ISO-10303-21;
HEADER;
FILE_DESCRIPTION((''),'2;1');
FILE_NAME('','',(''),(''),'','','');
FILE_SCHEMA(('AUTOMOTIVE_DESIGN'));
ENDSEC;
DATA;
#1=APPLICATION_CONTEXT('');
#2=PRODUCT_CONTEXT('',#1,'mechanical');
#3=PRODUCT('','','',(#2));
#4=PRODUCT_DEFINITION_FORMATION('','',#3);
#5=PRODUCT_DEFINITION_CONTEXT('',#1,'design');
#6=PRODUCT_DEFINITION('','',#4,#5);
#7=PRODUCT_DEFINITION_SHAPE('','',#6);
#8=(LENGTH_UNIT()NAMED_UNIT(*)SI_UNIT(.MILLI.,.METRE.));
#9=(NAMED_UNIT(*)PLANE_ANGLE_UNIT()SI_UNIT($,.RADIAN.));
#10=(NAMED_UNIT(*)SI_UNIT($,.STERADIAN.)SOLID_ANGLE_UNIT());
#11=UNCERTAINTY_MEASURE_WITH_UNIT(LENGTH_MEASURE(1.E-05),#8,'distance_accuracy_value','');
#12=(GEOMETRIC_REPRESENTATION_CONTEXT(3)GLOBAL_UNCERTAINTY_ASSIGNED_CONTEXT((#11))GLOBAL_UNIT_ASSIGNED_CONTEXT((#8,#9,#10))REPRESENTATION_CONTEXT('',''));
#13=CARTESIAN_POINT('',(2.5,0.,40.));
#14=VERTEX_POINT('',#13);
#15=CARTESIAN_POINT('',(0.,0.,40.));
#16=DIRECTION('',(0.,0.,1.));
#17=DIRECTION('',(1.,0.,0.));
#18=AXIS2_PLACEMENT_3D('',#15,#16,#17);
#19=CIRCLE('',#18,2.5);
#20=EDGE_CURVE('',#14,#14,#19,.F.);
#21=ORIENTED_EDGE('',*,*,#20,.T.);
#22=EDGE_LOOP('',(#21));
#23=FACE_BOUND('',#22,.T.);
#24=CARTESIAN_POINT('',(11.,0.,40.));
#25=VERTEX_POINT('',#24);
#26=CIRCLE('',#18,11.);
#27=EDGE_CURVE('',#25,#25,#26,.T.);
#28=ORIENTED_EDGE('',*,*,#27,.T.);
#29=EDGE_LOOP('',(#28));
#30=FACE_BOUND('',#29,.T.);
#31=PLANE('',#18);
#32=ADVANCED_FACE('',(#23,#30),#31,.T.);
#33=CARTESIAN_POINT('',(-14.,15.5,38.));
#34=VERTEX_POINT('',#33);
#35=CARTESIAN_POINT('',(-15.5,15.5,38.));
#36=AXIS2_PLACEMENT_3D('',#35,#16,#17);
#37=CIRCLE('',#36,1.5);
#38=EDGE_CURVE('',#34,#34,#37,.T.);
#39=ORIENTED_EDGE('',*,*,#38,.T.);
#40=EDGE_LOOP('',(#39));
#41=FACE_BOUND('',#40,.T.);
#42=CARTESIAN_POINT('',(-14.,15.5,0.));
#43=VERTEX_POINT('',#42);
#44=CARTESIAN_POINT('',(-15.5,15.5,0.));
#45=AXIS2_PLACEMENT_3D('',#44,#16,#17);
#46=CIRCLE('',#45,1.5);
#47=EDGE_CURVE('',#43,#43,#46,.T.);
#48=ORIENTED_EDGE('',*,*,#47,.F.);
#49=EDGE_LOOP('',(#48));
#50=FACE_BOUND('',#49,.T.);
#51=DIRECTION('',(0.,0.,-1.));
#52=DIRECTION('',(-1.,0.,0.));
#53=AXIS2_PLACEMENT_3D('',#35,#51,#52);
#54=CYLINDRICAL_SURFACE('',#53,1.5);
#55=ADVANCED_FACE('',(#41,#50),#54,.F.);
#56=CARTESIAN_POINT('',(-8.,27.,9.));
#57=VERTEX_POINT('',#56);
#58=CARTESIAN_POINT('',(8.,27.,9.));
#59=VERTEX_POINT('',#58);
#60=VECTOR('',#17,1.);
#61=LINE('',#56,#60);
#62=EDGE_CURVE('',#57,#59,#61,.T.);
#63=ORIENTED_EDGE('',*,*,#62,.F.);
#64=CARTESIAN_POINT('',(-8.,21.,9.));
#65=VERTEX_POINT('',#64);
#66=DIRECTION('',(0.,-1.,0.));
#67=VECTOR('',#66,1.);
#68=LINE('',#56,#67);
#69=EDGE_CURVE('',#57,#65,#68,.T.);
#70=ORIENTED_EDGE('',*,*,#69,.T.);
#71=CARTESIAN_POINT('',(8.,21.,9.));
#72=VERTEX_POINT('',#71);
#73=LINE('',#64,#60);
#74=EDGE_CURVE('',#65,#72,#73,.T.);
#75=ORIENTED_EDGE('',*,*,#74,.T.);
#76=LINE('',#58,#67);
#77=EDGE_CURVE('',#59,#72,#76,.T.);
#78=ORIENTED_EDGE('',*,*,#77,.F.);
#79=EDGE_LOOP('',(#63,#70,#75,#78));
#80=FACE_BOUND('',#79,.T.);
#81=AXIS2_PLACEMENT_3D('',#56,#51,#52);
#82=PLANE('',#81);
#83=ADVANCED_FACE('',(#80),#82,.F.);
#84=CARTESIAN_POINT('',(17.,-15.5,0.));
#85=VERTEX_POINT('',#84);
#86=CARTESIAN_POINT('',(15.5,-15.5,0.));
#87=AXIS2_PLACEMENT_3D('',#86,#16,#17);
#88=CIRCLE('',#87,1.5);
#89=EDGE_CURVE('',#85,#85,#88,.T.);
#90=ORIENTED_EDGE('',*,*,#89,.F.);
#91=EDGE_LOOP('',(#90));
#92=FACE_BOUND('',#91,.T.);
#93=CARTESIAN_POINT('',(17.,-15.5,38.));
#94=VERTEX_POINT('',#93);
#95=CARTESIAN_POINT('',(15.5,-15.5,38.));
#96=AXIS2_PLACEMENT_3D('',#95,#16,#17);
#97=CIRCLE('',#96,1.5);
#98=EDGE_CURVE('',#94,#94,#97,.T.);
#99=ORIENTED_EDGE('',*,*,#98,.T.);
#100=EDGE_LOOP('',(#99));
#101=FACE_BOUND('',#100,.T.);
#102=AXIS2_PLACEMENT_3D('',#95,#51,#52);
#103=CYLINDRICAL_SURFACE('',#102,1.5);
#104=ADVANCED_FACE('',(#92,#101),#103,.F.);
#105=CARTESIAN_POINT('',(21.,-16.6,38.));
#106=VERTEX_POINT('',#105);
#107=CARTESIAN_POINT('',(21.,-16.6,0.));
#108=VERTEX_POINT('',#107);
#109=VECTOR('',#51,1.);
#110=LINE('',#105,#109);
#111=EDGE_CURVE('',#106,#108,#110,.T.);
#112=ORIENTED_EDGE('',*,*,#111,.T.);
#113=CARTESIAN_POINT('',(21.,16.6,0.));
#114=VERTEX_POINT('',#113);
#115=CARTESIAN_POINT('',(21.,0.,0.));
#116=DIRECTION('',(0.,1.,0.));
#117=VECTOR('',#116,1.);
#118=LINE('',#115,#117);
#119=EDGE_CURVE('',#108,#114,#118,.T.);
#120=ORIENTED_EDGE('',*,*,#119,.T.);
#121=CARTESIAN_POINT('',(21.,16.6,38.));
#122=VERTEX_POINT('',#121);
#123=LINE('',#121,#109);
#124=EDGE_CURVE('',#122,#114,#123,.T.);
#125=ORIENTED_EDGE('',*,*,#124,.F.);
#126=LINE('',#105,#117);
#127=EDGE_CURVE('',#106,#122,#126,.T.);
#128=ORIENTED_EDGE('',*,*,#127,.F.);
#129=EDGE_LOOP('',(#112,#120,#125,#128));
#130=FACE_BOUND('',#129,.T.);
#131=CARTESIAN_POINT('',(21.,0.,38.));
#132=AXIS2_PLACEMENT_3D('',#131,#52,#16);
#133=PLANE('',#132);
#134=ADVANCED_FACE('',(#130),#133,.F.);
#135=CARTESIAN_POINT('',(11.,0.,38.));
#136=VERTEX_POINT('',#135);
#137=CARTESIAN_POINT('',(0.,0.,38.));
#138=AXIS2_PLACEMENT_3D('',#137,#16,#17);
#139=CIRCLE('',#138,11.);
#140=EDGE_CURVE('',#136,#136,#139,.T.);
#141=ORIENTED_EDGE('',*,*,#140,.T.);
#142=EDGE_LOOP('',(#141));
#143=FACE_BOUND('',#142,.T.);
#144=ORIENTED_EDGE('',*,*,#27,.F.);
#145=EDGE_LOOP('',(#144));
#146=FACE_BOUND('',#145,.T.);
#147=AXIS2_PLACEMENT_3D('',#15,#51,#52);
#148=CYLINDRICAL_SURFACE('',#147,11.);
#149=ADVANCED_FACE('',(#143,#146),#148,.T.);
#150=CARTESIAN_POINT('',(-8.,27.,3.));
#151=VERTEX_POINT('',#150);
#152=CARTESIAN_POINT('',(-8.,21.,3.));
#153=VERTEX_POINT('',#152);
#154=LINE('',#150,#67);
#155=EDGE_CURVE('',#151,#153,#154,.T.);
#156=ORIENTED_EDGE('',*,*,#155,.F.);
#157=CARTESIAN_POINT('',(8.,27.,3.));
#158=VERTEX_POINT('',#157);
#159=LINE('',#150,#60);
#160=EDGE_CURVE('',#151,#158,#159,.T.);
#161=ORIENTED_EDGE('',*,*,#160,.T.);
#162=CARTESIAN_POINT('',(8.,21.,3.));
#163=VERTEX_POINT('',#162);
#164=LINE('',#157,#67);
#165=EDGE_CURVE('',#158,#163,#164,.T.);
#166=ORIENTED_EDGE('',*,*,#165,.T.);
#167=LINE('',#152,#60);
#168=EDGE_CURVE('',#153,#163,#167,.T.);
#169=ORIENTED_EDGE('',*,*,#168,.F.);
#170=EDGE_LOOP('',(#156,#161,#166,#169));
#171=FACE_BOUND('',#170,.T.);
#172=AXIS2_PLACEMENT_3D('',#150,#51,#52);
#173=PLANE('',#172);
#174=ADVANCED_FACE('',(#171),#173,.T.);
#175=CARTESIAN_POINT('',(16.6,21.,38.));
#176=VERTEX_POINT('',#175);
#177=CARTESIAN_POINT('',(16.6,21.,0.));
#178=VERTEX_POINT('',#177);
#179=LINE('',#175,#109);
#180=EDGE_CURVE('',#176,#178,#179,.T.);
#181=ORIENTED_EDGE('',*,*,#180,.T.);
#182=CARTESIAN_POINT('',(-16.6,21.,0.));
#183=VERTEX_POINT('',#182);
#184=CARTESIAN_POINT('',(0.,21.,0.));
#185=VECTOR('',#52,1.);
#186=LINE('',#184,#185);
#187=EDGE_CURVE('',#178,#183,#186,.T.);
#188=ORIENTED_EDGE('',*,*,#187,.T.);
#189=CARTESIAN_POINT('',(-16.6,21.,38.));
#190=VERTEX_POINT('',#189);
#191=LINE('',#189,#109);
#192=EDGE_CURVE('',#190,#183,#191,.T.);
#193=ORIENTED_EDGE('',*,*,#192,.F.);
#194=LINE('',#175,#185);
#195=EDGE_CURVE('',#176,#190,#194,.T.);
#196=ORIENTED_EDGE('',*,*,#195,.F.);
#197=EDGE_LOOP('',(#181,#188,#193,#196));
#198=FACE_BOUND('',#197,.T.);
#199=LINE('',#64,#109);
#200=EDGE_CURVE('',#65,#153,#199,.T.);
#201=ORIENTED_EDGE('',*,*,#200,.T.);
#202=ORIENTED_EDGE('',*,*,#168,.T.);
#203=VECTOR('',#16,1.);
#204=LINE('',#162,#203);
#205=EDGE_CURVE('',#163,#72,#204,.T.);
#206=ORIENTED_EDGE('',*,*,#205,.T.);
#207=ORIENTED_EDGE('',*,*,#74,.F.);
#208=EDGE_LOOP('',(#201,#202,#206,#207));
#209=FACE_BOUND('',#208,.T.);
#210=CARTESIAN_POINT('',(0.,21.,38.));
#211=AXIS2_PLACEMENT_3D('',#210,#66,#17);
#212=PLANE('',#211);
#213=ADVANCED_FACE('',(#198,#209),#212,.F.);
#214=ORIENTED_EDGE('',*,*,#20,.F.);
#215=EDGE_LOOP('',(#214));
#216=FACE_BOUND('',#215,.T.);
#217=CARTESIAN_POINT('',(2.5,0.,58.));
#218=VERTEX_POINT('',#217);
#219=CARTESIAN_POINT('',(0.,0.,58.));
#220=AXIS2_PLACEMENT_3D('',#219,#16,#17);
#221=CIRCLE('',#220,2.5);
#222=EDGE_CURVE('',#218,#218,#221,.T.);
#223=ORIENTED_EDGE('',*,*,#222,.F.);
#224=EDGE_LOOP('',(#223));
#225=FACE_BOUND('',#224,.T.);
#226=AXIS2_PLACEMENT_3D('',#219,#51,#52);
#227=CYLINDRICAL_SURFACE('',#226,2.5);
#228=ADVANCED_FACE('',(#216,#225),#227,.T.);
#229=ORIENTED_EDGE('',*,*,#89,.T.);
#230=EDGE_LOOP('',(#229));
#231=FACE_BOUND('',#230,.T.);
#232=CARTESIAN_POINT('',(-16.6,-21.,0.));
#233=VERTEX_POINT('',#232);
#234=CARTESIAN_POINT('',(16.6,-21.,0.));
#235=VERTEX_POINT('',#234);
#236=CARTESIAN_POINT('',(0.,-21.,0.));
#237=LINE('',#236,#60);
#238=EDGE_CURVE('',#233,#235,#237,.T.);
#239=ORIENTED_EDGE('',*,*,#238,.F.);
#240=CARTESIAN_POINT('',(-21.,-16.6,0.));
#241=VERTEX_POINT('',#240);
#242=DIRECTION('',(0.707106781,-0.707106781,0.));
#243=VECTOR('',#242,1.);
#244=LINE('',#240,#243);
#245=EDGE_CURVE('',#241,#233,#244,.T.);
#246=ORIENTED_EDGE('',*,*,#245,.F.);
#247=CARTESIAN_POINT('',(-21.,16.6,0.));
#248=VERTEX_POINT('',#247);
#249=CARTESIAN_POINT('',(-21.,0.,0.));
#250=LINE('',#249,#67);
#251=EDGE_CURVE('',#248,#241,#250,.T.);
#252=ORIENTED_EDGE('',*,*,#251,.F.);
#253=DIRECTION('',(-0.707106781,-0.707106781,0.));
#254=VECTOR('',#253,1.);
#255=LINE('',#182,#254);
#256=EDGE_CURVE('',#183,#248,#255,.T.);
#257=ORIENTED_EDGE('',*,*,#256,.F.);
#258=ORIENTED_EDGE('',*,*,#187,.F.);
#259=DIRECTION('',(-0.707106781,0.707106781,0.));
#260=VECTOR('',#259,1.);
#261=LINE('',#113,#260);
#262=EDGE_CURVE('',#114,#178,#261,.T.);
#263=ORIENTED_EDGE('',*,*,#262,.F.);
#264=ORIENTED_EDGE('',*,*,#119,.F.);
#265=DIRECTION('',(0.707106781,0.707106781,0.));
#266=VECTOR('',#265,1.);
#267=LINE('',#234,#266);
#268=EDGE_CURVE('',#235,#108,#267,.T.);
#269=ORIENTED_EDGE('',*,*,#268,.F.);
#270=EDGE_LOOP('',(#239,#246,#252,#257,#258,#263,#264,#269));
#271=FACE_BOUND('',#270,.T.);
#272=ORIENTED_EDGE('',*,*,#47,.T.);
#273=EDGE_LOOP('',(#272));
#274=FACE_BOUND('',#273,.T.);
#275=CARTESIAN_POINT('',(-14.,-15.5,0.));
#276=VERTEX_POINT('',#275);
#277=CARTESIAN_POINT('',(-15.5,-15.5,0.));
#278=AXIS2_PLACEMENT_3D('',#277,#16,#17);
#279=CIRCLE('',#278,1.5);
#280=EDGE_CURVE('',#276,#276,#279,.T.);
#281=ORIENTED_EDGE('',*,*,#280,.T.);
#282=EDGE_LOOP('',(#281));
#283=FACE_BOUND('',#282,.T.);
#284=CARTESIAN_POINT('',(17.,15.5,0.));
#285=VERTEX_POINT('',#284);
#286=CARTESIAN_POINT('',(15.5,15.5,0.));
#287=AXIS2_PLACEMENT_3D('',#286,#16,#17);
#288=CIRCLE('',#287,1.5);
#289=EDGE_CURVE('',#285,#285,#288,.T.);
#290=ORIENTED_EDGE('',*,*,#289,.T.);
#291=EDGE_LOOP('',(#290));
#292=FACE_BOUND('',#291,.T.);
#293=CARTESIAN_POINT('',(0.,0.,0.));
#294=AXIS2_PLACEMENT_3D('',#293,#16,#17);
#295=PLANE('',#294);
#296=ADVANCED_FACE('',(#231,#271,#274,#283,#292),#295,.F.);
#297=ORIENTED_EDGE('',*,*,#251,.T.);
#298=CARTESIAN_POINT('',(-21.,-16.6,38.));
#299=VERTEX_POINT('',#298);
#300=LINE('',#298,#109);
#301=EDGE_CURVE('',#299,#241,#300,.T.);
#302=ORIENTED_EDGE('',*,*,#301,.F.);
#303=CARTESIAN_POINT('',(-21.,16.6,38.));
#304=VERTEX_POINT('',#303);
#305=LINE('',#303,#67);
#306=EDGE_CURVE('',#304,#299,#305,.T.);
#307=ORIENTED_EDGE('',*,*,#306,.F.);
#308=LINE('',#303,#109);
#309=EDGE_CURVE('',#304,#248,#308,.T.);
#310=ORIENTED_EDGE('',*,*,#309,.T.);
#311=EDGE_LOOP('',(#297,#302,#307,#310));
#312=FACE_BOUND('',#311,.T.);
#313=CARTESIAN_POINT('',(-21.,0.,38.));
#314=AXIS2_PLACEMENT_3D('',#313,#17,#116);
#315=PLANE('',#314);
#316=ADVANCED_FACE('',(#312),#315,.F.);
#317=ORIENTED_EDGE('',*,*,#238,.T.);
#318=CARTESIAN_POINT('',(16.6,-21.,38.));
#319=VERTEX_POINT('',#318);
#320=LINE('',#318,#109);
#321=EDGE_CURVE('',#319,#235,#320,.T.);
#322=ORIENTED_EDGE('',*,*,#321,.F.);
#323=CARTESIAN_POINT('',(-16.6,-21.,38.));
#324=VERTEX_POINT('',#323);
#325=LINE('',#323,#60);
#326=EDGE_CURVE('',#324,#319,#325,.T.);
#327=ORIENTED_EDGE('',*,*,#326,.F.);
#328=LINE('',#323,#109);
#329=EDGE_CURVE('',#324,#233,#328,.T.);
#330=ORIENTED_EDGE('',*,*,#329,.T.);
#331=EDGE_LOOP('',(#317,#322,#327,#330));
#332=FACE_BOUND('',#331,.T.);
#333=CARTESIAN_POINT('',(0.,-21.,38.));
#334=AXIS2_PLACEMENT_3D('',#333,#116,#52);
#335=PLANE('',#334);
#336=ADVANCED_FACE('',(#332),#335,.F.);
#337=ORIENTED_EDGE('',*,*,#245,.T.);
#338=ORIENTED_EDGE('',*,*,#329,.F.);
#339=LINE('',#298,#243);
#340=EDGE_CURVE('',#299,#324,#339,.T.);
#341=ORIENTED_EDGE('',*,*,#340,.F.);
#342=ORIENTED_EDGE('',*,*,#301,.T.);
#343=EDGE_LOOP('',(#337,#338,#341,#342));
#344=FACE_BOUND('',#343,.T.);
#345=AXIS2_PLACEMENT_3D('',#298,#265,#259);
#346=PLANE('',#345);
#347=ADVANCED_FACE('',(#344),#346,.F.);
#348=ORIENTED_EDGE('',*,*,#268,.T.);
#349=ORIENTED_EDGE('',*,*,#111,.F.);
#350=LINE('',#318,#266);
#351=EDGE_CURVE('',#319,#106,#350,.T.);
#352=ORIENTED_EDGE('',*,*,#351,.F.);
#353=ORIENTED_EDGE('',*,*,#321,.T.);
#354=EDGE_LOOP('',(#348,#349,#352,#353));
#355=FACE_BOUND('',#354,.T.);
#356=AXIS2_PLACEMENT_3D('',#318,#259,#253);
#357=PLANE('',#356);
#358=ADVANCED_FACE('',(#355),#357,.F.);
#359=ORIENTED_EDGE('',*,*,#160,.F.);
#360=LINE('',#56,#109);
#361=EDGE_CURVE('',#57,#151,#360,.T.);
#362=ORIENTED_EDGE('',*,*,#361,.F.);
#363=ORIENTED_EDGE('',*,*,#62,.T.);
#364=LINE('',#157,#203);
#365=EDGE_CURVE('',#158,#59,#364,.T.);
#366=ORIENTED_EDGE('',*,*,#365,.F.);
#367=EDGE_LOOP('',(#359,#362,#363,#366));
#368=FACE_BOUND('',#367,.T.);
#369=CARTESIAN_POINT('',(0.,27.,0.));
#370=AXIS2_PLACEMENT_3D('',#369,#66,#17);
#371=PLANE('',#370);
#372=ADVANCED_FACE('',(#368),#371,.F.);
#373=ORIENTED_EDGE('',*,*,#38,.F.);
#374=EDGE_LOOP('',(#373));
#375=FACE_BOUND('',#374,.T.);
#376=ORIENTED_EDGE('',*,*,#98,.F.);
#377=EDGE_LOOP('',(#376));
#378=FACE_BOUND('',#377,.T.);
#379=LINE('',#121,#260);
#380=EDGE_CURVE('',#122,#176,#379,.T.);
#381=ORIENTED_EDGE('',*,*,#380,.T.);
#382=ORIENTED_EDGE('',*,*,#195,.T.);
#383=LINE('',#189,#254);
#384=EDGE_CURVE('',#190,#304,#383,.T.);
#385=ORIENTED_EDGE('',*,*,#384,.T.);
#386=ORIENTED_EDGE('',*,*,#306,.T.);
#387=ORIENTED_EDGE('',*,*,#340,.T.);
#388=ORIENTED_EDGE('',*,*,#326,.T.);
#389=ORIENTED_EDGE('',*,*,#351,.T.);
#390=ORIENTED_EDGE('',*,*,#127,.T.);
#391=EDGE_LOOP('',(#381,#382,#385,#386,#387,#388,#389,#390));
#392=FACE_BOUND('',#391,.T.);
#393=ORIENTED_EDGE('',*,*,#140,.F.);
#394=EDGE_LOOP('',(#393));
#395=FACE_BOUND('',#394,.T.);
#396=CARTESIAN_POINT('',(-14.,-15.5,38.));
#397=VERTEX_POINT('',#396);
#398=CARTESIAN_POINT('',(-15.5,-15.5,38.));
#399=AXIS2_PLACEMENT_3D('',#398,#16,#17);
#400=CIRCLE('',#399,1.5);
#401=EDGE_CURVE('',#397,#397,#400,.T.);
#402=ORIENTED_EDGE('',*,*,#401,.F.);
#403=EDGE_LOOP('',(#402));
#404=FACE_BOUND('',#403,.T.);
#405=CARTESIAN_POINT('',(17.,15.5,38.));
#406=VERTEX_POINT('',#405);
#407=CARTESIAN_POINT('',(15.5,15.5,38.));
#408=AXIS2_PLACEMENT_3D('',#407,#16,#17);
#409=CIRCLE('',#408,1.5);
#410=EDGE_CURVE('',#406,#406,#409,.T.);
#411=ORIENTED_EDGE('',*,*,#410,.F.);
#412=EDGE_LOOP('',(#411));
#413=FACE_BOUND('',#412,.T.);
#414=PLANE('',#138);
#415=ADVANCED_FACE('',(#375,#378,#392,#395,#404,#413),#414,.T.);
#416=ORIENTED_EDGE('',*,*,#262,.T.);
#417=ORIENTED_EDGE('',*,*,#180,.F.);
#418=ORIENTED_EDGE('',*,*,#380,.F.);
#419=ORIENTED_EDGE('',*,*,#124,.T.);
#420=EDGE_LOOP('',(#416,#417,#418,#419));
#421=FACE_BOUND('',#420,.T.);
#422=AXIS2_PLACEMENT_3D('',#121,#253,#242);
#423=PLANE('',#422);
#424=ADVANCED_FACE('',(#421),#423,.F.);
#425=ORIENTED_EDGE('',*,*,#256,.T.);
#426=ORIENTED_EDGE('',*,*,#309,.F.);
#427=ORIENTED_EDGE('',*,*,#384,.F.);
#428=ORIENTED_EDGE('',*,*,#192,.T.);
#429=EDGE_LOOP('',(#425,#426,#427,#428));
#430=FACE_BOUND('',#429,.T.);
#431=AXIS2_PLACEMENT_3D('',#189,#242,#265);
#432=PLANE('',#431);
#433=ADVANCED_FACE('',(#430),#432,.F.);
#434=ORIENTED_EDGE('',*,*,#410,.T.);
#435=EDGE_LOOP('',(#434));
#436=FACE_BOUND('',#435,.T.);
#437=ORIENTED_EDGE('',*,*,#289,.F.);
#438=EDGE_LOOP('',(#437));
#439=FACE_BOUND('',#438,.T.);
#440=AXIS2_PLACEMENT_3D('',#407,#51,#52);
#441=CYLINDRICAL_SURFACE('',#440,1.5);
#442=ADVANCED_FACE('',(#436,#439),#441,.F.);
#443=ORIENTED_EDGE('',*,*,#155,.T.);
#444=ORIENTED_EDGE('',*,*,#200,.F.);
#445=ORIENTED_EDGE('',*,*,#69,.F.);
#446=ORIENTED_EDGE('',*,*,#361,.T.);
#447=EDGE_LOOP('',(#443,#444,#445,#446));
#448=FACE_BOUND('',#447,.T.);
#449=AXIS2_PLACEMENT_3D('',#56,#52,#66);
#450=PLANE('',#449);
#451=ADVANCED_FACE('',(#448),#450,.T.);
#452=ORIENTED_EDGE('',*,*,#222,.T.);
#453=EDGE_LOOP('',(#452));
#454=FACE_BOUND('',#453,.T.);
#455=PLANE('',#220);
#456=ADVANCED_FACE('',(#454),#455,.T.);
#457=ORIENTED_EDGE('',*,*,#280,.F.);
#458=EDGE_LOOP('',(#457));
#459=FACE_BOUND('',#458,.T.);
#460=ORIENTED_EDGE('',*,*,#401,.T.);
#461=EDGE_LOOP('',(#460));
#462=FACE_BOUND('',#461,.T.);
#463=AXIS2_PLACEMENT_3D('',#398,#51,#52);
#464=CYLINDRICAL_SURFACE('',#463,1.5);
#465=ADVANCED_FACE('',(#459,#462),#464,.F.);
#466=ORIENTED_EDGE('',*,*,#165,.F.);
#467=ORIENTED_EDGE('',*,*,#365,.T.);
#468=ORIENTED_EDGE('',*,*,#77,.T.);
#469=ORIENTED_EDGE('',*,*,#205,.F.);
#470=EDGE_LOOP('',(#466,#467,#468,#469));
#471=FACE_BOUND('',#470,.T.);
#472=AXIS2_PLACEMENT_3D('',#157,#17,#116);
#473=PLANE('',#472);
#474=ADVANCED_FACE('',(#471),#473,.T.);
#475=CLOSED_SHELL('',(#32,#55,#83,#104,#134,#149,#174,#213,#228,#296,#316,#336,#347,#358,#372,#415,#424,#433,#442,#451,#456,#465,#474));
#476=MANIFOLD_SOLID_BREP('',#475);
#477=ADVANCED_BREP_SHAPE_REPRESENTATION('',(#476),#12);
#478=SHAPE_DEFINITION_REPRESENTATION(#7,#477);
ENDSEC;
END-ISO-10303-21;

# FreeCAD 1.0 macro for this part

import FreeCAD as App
import Part
import Sketcher
Q = App.Units.Quantity


def add_polygon(sketch, points):
    """Adds a closed chain of lines whose ends are joined by coincident constraints."""
    first, n = sketch.GeometryCount, len(points)
    for a, b in zip(points, points[1:] + points[:1]):
        sketch.addGeometry(Part.LineSegment(App.Vector(*a, 0), App.Vector(*b, 0)), False)
    for i in range(n):
        sketch.addConstraint(Sketcher.Constraint("Coincident", first + i, 2, first + (i + 1) % n, 1))

doc = App.newDocument("Part")
body = doc.addObject("PartDesign::Body", "Body")

# Sketch on XY plane
sketch1 = body.newObject("Sketcher::SketchObject", "Sketch")
sketch1.AttachmentSupport = (doc.getObject("XY_Plane"), [""])
sketch1.MapMode = "FlatFace"
add_polygon(sketch1, [(21, 16.6), (16.6, 21), (-16.6, 21), (-21, 16.6), (-21, -16.6), (-16.6, -21), (16.6, -21), (21, -16.6)])  # lines 0-7
sketch1.addGeometry(Part.Circle(App.Vector(-15.5, -15.5, 0), App.Vector(0, 0, 1), 1.5), False)  # 8
sketch1.addGeometry(Part.Circle(App.Vector(15.5, -15.5, 0), App.Vector(0, 0, 1), 1.5), False)  # 9
sketch1.addGeometry(Part.Circle(App.Vector(-15.5, 15.5, 0), App.Vector(0, 0, 1), 1.5), False)  # 10
sketch1.addGeometry(Part.Circle(App.Vector(15.5, 15.5, 0), App.Vector(0, 0, 1), 1.5), False)  # 11
sketch1.addConstraint(Sketcher.Constraint("Horizontal", 1))
sketch1.addConstraint(Sketcher.Constraint("Vertical", 3))
sketch1.addConstraint(Sketcher.Constraint("Horizontal", 5))
sketch1.addConstraint(Sketcher.Constraint("Vertical", 7))
sketch1.addConstraint(Sketcher.Constraint("Equal", 8, 9))
sketch1.addConstraint(Sketcher.Constraint("Equal", 9, 10))
sketch1.addConstraint(Sketcher.Constraint("Equal", 10, 11))
sketch1.addConstraint(Sketcher.Constraint("Symmetric", 9, 3, 10, 3, -1, 1))
sketch1.addConstraint(Sketcher.Constraint("Symmetric", 8, 3, 11, 3, -1, 1))
sketch1.addConstraint(Sketcher.Constraint("Symmetric", 0, 2, 4, 2, -1, 1))
sketch1.addConstraint(Sketcher.Constraint("Symmetric", 2, 2, 6, 2, -1, 1))
sketch1.addConstraint(Sketcher.Constraint("Symmetric", 8, 3, 9, 3, -2))
sketch1.addConstraint(Sketcher.Constraint("Perpendicular", 0, 2))
sketch1.addConstraint(Sketcher.Constraint("Perpendicular", 2, 4))
sketch1.addConstraint(Sketcher.Constraint("Perpendicular", 4, 6))
sketch1.addConstraint(Sketcher.Constraint("Horizontal", 3, 2, 6, 2))
sketch1.addConstraint(Sketcher.Constraint("Vertical", 1, 2, 4, 2))
sketch1.addConstraint(Sketcher.Constraint("Equal", 5, 3))
sketch1.addConstraint(Sketcher.Constraint("Diameter", 8, Q("3 mm")))
sketch1.addConstraint(Sketcher.Constraint("DistanceX", 1, 2, 1, 1, Q("33.2 mm")))
sketch1.addConstraint(Sketcher.Constraint("DistanceY", -1, 1, 0, 2, Q("21 mm")))
sketch1.addConstraint(Sketcher.Constraint("DistanceX", 8, 3, 9, 3, Q("31 mm")))
sketch1.addConstraint(Sketcher.Constraint("DistanceY", 8, 3, 10, 3, Q("31 mm")))
pad1 = body.newObject("PartDesign::Pad", "Pad")
pad1.Profile = sketch1
pad1.Length = 38

# Sketch on XY plane
sketch2 = body.newObject("Sketcher::SketchObject", "Sketch001")
sketch2.AttachmentSupport = (doc.getObject("XY_Plane"), [""])
sketch2.MapMode = "FlatFace"
sketch2.AttachmentOffset = App.Placement(App.Vector(0, 0, 38), App.Rotation())
sketch2.addGeometry(Part.Circle(App.Vector(0, 0, 0), App.Vector(0, 0, 1), 11), False)
sketch2.addConstraint(Sketcher.Constraint("Coincident", 0, 3, -1, 1))
sketch2.addConstraint(Sketcher.Constraint("Diameter", 0, Q("22 mm")))
pad2 = body.newObject("PartDesign::Pad", "Pad001")
pad2.Profile = sketch2
pad2.Length = 2

# Sketch on XY plane
sketch3 = body.newObject("Sketcher::SketchObject", "Sketch002")
sketch3.AttachmentSupport = (doc.getObject("XY_Plane"), [""])
sketch3.MapMode = "FlatFace"
sketch3.AttachmentOffset = App.Placement(App.Vector(0, 0, 38), App.Rotation())
sketch3.addGeometry(Part.Circle(App.Vector(0, 0, 0), App.Vector(0, 0, 1), 2.5), False)
sketch3.addConstraint(Sketcher.Constraint("Coincident", 0, 3, -1, 1))
sketch3.addConstraint(Sketcher.Constraint("Diameter", 0, Q("5 mm")))
pad3 = body.newObject("PartDesign::Pad", "Pad002")
pad3.Profile = sketch3
pad3.Length = 20

# Sketch on XZ plane
sketch4 = body.newObject("Sketcher::SketchObject", "Sketch003")
sketch4.AttachmentSupport = (doc.getObject("XZ_Plane"), [""])
sketch4.MapMode = "FlatFace"
sketch4.AttachmentOffset = App.Placement(App.Vector(0, 0, -21), App.Rotation())
add_polygon(sketch4, [(-8, 3), (-8, 9), (8, 9), (8, 3)])  # lines 0-3
sketch4.addConstraint(Sketcher.Constraint("Vertical", 0))
sketch4.addConstraint(Sketcher.Constraint("Horizontal", 1))
sketch4.addConstraint(Sketcher.Constraint("Vertical", 2))
sketch4.addConstraint(Sketcher.Constraint("Horizontal", 3))
sketch4.addConstraint(Sketcher.Constraint("DistanceX", 1, 1, 1, 2, Q("16 mm")))
sketch4.addConstraint(Sketcher.Constraint("DistanceY", 0, 1, 0, 2, Q("6 mm")))
sketch4.addConstraint(Sketcher.Constraint("DistanceX", 0, 2, -1, 1, Q("8 mm")))
sketch4.addConstraint(Sketcher.Constraint("DistanceY", -1, 1, 0, 2, Q("9 mm")))
pad4 = body.newObject("PartDesign::Pad", "Pad003")
pad4.Profile = sketch4
pad4.Length = 6
pad4.Reversed = True

doc.recompute()
